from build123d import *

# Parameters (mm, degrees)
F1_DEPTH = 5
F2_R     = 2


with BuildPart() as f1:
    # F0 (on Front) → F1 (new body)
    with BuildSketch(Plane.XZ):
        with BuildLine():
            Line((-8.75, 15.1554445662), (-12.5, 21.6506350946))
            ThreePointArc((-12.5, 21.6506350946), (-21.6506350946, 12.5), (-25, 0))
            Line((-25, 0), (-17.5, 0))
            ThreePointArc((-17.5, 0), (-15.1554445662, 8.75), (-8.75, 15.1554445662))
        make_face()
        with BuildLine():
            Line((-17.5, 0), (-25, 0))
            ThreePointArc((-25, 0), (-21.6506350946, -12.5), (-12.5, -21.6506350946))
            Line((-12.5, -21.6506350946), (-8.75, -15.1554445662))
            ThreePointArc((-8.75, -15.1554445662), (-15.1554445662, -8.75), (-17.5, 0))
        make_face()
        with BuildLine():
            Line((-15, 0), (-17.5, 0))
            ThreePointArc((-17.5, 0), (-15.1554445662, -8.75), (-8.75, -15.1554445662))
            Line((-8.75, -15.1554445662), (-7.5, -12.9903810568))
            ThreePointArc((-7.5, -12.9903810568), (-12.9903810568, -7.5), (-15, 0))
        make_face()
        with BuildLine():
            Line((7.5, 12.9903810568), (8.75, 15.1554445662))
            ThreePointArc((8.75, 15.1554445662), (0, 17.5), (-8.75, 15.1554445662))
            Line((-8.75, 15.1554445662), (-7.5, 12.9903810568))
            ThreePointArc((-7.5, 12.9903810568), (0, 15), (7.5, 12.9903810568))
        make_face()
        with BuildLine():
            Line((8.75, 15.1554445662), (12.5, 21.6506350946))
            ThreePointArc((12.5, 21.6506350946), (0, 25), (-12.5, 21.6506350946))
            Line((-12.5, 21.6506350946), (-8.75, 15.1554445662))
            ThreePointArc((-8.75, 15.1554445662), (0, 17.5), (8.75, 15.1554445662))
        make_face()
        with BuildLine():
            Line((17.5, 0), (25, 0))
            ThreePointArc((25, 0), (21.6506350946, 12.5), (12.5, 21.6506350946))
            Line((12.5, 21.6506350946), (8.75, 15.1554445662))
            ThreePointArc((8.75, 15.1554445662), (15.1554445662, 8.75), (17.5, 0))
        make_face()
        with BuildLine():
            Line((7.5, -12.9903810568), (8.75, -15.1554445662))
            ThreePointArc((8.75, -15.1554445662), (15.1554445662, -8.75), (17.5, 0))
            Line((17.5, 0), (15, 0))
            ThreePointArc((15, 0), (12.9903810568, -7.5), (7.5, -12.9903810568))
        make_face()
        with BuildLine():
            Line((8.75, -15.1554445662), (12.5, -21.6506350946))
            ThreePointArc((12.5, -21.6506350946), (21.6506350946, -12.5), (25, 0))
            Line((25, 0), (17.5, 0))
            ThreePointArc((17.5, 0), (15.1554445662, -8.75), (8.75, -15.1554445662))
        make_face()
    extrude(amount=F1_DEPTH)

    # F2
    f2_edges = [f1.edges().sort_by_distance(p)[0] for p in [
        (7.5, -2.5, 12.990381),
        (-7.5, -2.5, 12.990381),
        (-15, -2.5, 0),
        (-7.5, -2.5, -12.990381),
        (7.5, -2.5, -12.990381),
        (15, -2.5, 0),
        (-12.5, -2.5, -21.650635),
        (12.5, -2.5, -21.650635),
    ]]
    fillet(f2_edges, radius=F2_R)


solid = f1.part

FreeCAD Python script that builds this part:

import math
import FreeCAD as App
import Part
import Sketcher
Q = App.Units.Quantity


def edges_at(feature, points):
    """Names of the edges that pass closest to the given points."""
    edges = feature.Shape.Edges
    near = lambda p: min(range(len(edges)), key=lambda i: edges[i].distToShape(Part.Vertex(*p))[0])
    return sorted({f"Edge{near(p) + 1}" for p in points})

doc = App.newDocument("Part")
body = doc.addObject("PartDesign::Body", "Body")

# Sketch on XZ plane
sketch1 = doc.addObject("Sketcher::SketchObject", "Sketch")
body.addObject(sketch1)
sketch1.AttachmentSupport = (doc.XZ_Plane, [""])
sketch1.MapMode = "FlatFace"
sketch1.addGeometry([
    Part.ArcOfCircle(Part.Circle(App.Vector(0, 0, 0), App.Vector(0, 0, 1), 25), math.radians(120), math.radians(180)),  # 0
    Part.ArcOfCircle(Part.Circle(App.Vector(0, 0, 0), App.Vector(0, 0, 1), 25), math.radians(180), math.radians(240)),  # 1
    Part.LineSegment(App.Vector(-12.5, -21.7, 0), App.Vector(-8.8, -15.2, 0)),  # 2
    Part.LineSegment(App.Vector(-8.8, -15.2, 0), App.Vector(-7.5, -13, 0)),  # 3
    Part.ArcOfCircle(Part.Circle(App.Vector(0, 0, 0), App.Vector(0, 0, 1), 15), math.radians(180), math.radians(240)),  # 4
    Part.LineSegment(App.Vector(-15, 0, 0), App.Vector(-17.5, 0, 0)),  # 5
    Part.ArcOfCircle(Part.Circle(App.Vector(0, 0, 0), App.Vector(0, 0, 1), 17.5), math.radians(120), math.radians(180)),  # 6
    Part.LineSegment(App.Vector(-8.8, 15.2, 0), App.Vector(-7.5, 13, 0)),  # 7
    Part.ArcOfCircle(Part.Circle(App.Vector(0, 0, 0), App.Vector(0, 0, 1), 15), math.radians(60), math.radians(120)),  # 8
    Part.LineSegment(App.Vector(7.5, 13, 0), App.Vector(8.8, 15.2, 0)),  # 9
    Part.ArcOfCircle(Part.Circle(App.Vector(0, 0, 0), App.Vector(0, 0, 1), 17.5), math.radians(0), math.radians(60)),  # 10
    Part.LineSegment(App.Vector(17.5, 0, 0), App.Vector(15, 0, 0)),  # 11
    Part.ArcOfCircle(Part.Circle(App.Vector(0, 0, 0), App.Vector(0, 0, 1), 15), math.radians(-60), math.radians(0)),  # 12
    Part.LineSegment(App.Vector(7.5, -13, 0), App.Vector(8.8, -15.2, 0)),  # 13
    Part.LineSegment(App.Vector(8.8, -15.2, 0), App.Vector(12.5, -21.7, 0)),  # 14
    Part.ArcOfCircle(Part.Circle(App.Vector(0, 0, 0), App.Vector(0, 0, 1), 25), math.radians(-60), math.radians(0)),  # 15
    Part.ArcOfCircle(Part.Circle(App.Vector(0, 0, 0), App.Vector(0, 0, 1), 25), math.radians(0), math.radians(60)),  # 16
    Part.ArcOfCircle(Part.Circle(App.Vector(0, 0, 0), App.Vector(0, 0, 1), 25), math.radians(60), math.radians(120)),  # 17
], False)
sketch1.addConstraint([
    Sketcher.Constraint("Tangent", 0, 2, 1, 1),
    Sketcher.Constraint("Coincident", 1, 2, 2, 1),
    Sketcher.Constraint("Coincident", 2, 2, 3, 1),
    Sketcher.Constraint("Coincident", 3, 2, 4, 2),
    Sketcher.Constraint("Coincident", 4, 1, 5, 1),
    Sketcher.Constraint("Coincident", 5, 2, 6, 2),
    Sketcher.Constraint("Coincident", 6, 1, 7, 1),
    Sketcher.Constraint("Coincident", 7, 2, 8, 2),
    Sketcher.Constraint("Coincident", 8, 1, 9, 1),
    Sketcher.Constraint("Coincident", 9, 2, 10, 2),
    Sketcher.Constraint("Coincident", 10, 1, 11, 1),
    Sketcher.Constraint("Coincident", 11, 2, 12, 2),
    Sketcher.Constraint("Coincident", 12, 1, 13, 1),
    Sketcher.Constraint("Coincident", 13, 2, 14, 1),
    Sketcher.Constraint("Coincident", 14, 2, 15, 1),
    Sketcher.Constraint("Tangent", 15, 2, 16, 1),
    Sketcher.Constraint("Tangent", 16, 2, 17, 1),
    Sketcher.Constraint("Tangent", 17, 2, 0, 1),
    Sketcher.Constraint("Horizontal", 5),
    Sketcher.Constraint("Horizontal", 11),
    Sketcher.Constraint("Coincident", 0, 3, -1, 1),
    Sketcher.Constraint("Coincident", 4, 3, -1, 1),
    Sketcher.Constraint("Coincident", 6, 3, -1, 1),
    Sketcher.Constraint("Coincident", 8, 3, -1, 1),
    Sketcher.Constraint("Coincident", 10, 3, -1, 1),
    Sketcher.Constraint("Coincident", 12, 3, -1, 1),
    Sketcher.Constraint("Coincident", 15, 3, -1, 1),
    Sketcher.Constraint("Equal", 0, 1),
    Sketcher.Constraint("Equal", 4, 8),
    Sketcher.Constraint("Equal", 6, 10),
    Sketcher.Constraint("Equal", 8, 12),
    Sketcher.Constraint("Equal", 1, 15),
    Sketcher.Constraint("Symmetric", 2, 2, 9, 2, -1, 1),
    Sketcher.Constraint("Symmetric", 6, 1, 13, 2, -1, 1),
    Sketcher.Constraint("PointOnObject", 0, 2, -1),
    Sketcher.Constraint("PointOnObject", 4, 1, -1),
    Sketcher.Constraint("PointOnObject", 10, 1, -1),
    Sketcher.Constraint("PointOnObject", 15, 2, -1),
    Sketcher.Constraint("Parallel", 2, 3),
    Sketcher.Constraint("Parallel", 3, 9),
    Sketcher.Constraint("Parallel", 7, 13),
    Sketcher.Constraint("Parallel", 13, 14),
    Sketcher.Constraint("Horizontal", 7, 2, 8, 1),
    Sketcher.Constraint("Horizontal", 6, 1, 9, 2),
    Sketcher.Constraint("Horizontal", 16, 2, 17, 2),
    Sketcher.Constraint("Vertical", 14, 2, 16, 2),
    Sketcher.Constraint("Radius", 0, Q("25 mm")),
    Sketcher.Constraint("Radius", 4, Q("15 mm")),
    Sketcher.Constraint("Radius", 6, Q("17.5 mm")),
    Sketcher.Constraint("Angle", 2, Q("60 deg")),
    Sketcher.Constraint("DistanceX", 5, 2, 3, 2, Q("10 mm")),
])
pad1 = doc.addObject("PartDesign::Pad", "Pad")
body.addObject(pad1)
pad1.Profile = sketch1
pad1.Length = 5
doc.recompute()

fillet = doc.addObject("PartDesign::Fillet", "Fillet")
body.addObject(fillet)
fillet.Base = (pad1, edges_at(pad1, [
    (7.5, -2.5, 12.99),
    (-7.5, -2.5, 12.99),
    (-15, -2.5, 0),
    (-7.5, -2.5, -12.99),
    (7.5, -2.5, -12.99),
    (15, -2.5, 0),
    (-12.5, -2.5, -21.651),
    (12.5, -2.5, -21.651),
]))
fillet.Radius = 2

doc.recompute()
